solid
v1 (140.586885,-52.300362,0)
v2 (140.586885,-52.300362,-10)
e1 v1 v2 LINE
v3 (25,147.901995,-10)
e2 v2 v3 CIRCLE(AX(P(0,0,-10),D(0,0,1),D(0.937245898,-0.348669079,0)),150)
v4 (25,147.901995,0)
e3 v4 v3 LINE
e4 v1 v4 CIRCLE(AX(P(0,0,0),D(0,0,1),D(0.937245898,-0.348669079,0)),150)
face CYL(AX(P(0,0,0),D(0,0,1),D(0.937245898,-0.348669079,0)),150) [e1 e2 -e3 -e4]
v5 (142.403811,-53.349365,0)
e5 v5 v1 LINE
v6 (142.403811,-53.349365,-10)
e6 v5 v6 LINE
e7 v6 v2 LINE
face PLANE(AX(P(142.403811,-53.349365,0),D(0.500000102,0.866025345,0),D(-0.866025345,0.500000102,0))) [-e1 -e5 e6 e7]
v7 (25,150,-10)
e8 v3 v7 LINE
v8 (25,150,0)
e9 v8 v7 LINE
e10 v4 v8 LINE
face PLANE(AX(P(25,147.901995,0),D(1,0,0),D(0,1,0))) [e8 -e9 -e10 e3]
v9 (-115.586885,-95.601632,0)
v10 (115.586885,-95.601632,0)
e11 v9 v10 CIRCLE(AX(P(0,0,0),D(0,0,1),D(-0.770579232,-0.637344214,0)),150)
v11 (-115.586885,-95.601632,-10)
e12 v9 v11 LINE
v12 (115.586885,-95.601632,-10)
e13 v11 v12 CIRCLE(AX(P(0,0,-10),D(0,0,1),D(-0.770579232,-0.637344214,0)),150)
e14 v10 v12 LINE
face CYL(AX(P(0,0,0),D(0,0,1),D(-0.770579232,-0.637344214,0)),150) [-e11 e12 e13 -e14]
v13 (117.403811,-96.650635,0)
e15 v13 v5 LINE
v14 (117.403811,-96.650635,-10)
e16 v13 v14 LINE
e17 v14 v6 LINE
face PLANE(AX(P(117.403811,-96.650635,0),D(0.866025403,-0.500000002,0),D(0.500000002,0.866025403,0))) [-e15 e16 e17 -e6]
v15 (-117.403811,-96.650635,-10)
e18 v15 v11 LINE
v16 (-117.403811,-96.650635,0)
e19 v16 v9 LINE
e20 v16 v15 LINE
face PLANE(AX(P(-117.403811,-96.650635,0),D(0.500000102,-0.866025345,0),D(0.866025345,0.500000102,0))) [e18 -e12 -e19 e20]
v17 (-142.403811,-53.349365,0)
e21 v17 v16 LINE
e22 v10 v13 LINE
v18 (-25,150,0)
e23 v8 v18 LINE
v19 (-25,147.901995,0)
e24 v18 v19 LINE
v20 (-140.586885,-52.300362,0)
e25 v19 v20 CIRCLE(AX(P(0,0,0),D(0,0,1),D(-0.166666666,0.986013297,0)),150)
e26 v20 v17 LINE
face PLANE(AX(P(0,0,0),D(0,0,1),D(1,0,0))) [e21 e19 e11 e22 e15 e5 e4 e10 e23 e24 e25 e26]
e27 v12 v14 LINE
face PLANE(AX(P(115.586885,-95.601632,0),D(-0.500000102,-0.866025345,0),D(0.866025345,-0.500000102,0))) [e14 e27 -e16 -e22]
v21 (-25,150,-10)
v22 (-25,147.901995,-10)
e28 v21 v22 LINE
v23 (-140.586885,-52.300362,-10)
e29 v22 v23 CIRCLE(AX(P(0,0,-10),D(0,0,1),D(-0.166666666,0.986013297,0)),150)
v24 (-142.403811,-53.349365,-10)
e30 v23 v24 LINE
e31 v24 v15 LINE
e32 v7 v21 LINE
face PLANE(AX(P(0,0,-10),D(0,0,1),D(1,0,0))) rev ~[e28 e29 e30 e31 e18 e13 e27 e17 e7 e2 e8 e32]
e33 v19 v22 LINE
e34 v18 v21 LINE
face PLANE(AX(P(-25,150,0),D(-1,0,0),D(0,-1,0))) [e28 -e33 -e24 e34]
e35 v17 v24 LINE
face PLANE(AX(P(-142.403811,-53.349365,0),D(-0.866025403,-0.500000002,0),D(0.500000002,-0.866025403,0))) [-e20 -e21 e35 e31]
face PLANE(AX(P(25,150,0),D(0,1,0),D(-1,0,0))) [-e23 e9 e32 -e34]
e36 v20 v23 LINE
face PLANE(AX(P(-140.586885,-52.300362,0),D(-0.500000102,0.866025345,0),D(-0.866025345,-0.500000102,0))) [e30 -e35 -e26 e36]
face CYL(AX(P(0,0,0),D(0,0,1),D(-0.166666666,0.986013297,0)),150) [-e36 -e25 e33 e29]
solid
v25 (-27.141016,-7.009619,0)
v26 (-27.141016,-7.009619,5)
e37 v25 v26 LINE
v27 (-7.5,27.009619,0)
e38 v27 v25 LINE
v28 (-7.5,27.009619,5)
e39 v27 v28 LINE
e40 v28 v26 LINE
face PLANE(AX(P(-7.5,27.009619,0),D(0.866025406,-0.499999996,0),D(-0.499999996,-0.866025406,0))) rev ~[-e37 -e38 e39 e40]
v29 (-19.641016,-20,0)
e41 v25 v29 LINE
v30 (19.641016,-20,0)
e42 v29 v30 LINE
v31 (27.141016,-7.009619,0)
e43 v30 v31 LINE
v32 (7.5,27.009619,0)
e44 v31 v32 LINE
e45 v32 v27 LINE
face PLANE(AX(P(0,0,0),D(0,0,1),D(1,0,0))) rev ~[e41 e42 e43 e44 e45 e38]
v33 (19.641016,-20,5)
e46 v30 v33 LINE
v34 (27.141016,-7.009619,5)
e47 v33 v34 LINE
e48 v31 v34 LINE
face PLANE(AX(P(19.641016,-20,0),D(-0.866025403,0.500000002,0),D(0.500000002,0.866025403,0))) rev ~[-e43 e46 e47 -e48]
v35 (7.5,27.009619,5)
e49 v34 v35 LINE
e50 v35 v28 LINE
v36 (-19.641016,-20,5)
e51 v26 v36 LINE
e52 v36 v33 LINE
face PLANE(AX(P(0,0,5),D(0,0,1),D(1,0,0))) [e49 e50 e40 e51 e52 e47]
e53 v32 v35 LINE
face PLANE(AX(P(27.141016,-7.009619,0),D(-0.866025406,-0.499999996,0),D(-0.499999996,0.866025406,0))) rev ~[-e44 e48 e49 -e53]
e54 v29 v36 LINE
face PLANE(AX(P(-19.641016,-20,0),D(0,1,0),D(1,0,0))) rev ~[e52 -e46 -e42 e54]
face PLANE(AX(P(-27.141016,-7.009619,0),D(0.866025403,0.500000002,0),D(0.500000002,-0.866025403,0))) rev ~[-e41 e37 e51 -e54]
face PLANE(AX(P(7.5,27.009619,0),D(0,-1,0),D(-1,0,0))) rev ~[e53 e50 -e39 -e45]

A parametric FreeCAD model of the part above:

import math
import FreeCAD as App
import Part
import Sketcher

V = App.Vector
Q = App.Units.Quantity

doc = App.newDocument("Part")
body = doc.addObject("PartDesign::Body", "Body")

# Sketch on XY plane
sketch1 = body.newObject("Sketcher::SketchObject", "Sketch")
sketch1.AttachmentSupport = (doc.getObject("XY_Plane"), [""])
sketch1.MapMode = "FlatFace"
sketch1.addGeometry(Part.LineSegment(V(-117.403811, -96.650635, 0), V(-115.586885, -95.601632, 0)), False)
sketch1.addGeometry(Part.ArcOfCircle(Part.Circle(V(0, 0, 0), V(0, 0, 1), 150), math.radians(-140.405932), math.radians(-39.594068)), False)
sketch1.addGeometry(Part.LineSegment(V(115.586885, -95.601632, 0), V(117.403811, -96.650635, 0)), False)
sketch1.addGeometry(Part.LineSegment(V(117.403811, -96.650635, 0), V(142.403811, -53.349365, 0)), False)
sketch1.addGeometry(Part.LineSegment(V(142.403811, -53.349365, 0), V(140.586885, -52.300362, 0)), False)
sketch1.addGeometry(Part.ArcOfCircle(Part.Circle(V(0, 0, 0), V(0, 0, 1), 150), math.radians(-20.405932), math.radians(80.405932)), False)
sketch1.addGeometry(Part.LineSegment(V(25, 147.901995, 0), V(25, 150, 0)), False)
sketch1.addGeometry(Part.LineSegment(V(25, 150, 0), V(-25, 150, 0)), False)
sketch1.addGeometry(Part.LineSegment(V(-25, 150, 0), V(-25, 147.901995, 0)), False)
sketch1.addGeometry(Part.ArcOfCircle(Part.Circle(V(0, 0, 0), V(0, 0, 1), 150), math.radians(99.594068), math.radians(200.405932)), False)
sketch1.addGeometry(Part.LineSegment(V(-140.586885, -52.300362, 0), V(-142.403811, -53.349365, 0)), False)
sketch1.addGeometry(Part.LineSegment(V(-142.403811, -53.349365, 0), V(-117.403811, -96.650635, 0)), False)
sketch1.addConstraint(Sketcher.Constraint("Coincident", 0, 2, 1, 1))
sketch1.addConstraint(Sketcher.Constraint("Coincident", 1, 2, 2, 1))
sketch1.addConstraint(Sketcher.Constraint("Coincident", 2, 2, 3, 1))
sketch1.addConstraint(Sketcher.Constraint("Coincident", 3, 2, 4, 1))
sketch1.addConstraint(Sketcher.Constraint("Coincident", 4, 2, 5, 1))
sketch1.addConstraint(Sketcher.Constraint("Coincident", 5, 2, 6, 1))
sketch1.addConstraint(Sketcher.Constraint("Coincident", 6, 2, 7, 1))
sketch1.addConstraint(Sketcher.Constraint("Coincident", 7, 2, 8, 1))
sketch1.addConstraint(Sketcher.Constraint("Coincident", 8, 2, 9, 1))
sketch1.addConstraint(Sketcher.Constraint("Coincident", 9, 2, 10, 1))
sketch1.addConstraint(Sketcher.Constraint("Coincident", 10, 2, 11, 1))
sketch1.addConstraint(Sketcher.Constraint("Coincident", 11, 2, 0, 1))
sketch1.addConstraint(Sketcher.Constraint("Vertical", 6))
sketch1.addConstraint(Sketcher.Constraint("Horizontal", 7))
sketch1.addConstraint(Sketcher.Constraint("Vertical", 8))
sketch1.addConstraint(Sketcher.Constraint("Coincident", 1, 3, -1, 1))
sketch1.addConstraint(Sketcher.Constraint("Coincident", 5, 3, -1, 1))
sketch1.addConstraint(Sketcher.Constraint("Coincident", 9, 3, -1, 1))
sketch1.addConstraint(Sketcher.Constraint("Radius", 1, Q("150 mm")))
sketch1.addConstraint(Sketcher.Constraint("Radius", 5, Q("150 mm")))
sketch1.addConstraint(Sketcher.Constraint("Radius", 9, Q("150 mm")))
sketch1.addConstraint(Sketcher.Constraint("DistanceX", 7, 2, 7, 1, Q("50 mm")))
sketch1.addConstraint(Sketcher.Constraint("Distance", 3, Q("50 mm")))
sketch1.addConstraint(Sketcher.Constraint("Distance", 11, Q("50 mm")))
sketch1.addConstraint(Sketcher.Constraint("DistanceX", -1, 1, 5, 2, Q("25 mm")))
sketch1.addConstraint(Sketcher.Constraint("DistanceY", -1, 1, 6, 2, Q("150 mm")))
sketch1.addConstraint(Sketcher.Constraint("DistanceX", 2, 2, 3, 2, Q("25 mm")))
sketch1.addConstraint(Sketcher.Constraint("DistanceX", 1, 2, 4, 2, Q("25 mm")))
sketch1.addConstraint(Sketcher.Constraint("DistanceX", 9, 2, 0, 2, Q("25 mm")))
sketch1.addConstraint(Sketcher.Constraint("DistanceX", 10, 2, 11, 2, Q("25 mm")))
sketch1.addConstraint(Sketcher.Constraint("DistanceY", 0, 2, -1, 1, Q("95.601632 mm")))
sketch1.addConstraint(Sketcher.Constraint("DistanceY", 1, 2, -1, 1, Q("95.601632 mm")))
sketch1.addConstraint(Sketcher.Constraint("DistanceX", -1, 1, 2, 2, Q("117.403811 mm")))
sketch1.addConstraint(Sketcher.Constraint("DistanceX", 10, 2, -1, 1, Q("142.403811 mm")))
sketch1.addConstraint(Sketcher.Constraint("DistanceY", 3, 2, 5, 2, Q("201.25136 mm")))
sketch1.addConstraint(Sketcher.Constraint("Distance", 0, Q("2.098006 mm")))
pad1 = body.newObject("PartDesign::Pad", "Pad")
pad1.Profile = sketch1
pad1.Length = 10
pad1.Reversed = True
body2 = doc.addObject("PartDesign::Body", "Body001")

# Sketch on XY plane
sketch2 = body2.newObject("Sketcher::SketchObject", "Sketch001")
sketch2.AttachmentSupport = (doc.getObject("XY_Plane001"), [""])
sketch2.MapMode = "FlatFace"
sketch2.addGeometry(Part.LineSegment(V(27.141016, -7.009619, 0), V(7.5, 27.009619, 0)), False)
sketch2.addGeometry(Part.LineSegment(V(7.5, 27.009619, 0), V(-7.5, 27.009619, 0)), False)
sketch2.addGeometry(Part.LineSegment(V(-7.5, 27.009619, 0), V(-27.141016, -7.009619, 0)), False)
sketch2.addGeometry(Part.LineSegment(V(-27.141016, -7.009619, 0), V(-19.641016, -20, 0)), False)
sketch2.addGeometry(Part.LineSegment(V(-19.641016, -20, 0), V(19.641016, -20, 0)), False)
sketch2.addGeometry(Part.LineSegment(V(19.641016, -20, 0), V(27.141016, -7.009619, 0)), False)
sketch2.addConstraint(Sketcher.Constraint("Coincident", 0, 2, 1, 1))
sketch2.addConstraint(Sketcher.Constraint("Coincident", 1, 2, 2, 1))
sketch2.addConstraint(Sketcher.Constraint("Coincident", 2, 2, 3, 1))
sketch2.addConstraint(Sketcher.Constraint("Coincident", 3, 2, 4, 1))
sketch2.addConstraint(Sketcher.Constraint("Coincident", 4, 2, 5, 1))
sketch2.addConstraint(Sketcher.Constraint("Coincident", 5, 2, 0, 1))
sketch2.addConstraint(Sketcher.Constraint("Horizontal", 1))
sketch2.addConstraint(Sketcher.Constraint("Horizontal", 4))
sketch2.addConstraint(Sketcher.Constraint("Symmetric", 2, 2, 5, 2, -2))
sketch2.addConstraint(Sketcher.Constraint("Parallel", 0, 3))
sketch2.addConstraint(Sketcher.Constraint("Parallel", 2, 5))
sketch2.addConstraint(Sketcher.Constraint("Equal", 0, 2))
sketch2.addConstraint(Sketcher.Constraint("DistanceX", 1, 2, 1, 1, Q("15 mm")))
sketch2.addConstraint(Sketcher.Constraint("Angle", 0, Q("120 deg")))
sketch2.addConstraint(Sketcher.Constraint("Distance", 3, Q("15 mm")))
sketch2.addConstraint(Sketcher.Constraint("DistanceY", 3, 2, -1, 1, Q("20 mm")))
sketch2.addConstraint(Sketcher.Constraint("DistanceX", 4, 1, 4, 2, Q("39.282032 mm")))
pad2 = body2.newObject("PartDesign::Pad", "Pad001")
pad2.Profile = sketch2
pad2.Length = 5

doc.recompute()
